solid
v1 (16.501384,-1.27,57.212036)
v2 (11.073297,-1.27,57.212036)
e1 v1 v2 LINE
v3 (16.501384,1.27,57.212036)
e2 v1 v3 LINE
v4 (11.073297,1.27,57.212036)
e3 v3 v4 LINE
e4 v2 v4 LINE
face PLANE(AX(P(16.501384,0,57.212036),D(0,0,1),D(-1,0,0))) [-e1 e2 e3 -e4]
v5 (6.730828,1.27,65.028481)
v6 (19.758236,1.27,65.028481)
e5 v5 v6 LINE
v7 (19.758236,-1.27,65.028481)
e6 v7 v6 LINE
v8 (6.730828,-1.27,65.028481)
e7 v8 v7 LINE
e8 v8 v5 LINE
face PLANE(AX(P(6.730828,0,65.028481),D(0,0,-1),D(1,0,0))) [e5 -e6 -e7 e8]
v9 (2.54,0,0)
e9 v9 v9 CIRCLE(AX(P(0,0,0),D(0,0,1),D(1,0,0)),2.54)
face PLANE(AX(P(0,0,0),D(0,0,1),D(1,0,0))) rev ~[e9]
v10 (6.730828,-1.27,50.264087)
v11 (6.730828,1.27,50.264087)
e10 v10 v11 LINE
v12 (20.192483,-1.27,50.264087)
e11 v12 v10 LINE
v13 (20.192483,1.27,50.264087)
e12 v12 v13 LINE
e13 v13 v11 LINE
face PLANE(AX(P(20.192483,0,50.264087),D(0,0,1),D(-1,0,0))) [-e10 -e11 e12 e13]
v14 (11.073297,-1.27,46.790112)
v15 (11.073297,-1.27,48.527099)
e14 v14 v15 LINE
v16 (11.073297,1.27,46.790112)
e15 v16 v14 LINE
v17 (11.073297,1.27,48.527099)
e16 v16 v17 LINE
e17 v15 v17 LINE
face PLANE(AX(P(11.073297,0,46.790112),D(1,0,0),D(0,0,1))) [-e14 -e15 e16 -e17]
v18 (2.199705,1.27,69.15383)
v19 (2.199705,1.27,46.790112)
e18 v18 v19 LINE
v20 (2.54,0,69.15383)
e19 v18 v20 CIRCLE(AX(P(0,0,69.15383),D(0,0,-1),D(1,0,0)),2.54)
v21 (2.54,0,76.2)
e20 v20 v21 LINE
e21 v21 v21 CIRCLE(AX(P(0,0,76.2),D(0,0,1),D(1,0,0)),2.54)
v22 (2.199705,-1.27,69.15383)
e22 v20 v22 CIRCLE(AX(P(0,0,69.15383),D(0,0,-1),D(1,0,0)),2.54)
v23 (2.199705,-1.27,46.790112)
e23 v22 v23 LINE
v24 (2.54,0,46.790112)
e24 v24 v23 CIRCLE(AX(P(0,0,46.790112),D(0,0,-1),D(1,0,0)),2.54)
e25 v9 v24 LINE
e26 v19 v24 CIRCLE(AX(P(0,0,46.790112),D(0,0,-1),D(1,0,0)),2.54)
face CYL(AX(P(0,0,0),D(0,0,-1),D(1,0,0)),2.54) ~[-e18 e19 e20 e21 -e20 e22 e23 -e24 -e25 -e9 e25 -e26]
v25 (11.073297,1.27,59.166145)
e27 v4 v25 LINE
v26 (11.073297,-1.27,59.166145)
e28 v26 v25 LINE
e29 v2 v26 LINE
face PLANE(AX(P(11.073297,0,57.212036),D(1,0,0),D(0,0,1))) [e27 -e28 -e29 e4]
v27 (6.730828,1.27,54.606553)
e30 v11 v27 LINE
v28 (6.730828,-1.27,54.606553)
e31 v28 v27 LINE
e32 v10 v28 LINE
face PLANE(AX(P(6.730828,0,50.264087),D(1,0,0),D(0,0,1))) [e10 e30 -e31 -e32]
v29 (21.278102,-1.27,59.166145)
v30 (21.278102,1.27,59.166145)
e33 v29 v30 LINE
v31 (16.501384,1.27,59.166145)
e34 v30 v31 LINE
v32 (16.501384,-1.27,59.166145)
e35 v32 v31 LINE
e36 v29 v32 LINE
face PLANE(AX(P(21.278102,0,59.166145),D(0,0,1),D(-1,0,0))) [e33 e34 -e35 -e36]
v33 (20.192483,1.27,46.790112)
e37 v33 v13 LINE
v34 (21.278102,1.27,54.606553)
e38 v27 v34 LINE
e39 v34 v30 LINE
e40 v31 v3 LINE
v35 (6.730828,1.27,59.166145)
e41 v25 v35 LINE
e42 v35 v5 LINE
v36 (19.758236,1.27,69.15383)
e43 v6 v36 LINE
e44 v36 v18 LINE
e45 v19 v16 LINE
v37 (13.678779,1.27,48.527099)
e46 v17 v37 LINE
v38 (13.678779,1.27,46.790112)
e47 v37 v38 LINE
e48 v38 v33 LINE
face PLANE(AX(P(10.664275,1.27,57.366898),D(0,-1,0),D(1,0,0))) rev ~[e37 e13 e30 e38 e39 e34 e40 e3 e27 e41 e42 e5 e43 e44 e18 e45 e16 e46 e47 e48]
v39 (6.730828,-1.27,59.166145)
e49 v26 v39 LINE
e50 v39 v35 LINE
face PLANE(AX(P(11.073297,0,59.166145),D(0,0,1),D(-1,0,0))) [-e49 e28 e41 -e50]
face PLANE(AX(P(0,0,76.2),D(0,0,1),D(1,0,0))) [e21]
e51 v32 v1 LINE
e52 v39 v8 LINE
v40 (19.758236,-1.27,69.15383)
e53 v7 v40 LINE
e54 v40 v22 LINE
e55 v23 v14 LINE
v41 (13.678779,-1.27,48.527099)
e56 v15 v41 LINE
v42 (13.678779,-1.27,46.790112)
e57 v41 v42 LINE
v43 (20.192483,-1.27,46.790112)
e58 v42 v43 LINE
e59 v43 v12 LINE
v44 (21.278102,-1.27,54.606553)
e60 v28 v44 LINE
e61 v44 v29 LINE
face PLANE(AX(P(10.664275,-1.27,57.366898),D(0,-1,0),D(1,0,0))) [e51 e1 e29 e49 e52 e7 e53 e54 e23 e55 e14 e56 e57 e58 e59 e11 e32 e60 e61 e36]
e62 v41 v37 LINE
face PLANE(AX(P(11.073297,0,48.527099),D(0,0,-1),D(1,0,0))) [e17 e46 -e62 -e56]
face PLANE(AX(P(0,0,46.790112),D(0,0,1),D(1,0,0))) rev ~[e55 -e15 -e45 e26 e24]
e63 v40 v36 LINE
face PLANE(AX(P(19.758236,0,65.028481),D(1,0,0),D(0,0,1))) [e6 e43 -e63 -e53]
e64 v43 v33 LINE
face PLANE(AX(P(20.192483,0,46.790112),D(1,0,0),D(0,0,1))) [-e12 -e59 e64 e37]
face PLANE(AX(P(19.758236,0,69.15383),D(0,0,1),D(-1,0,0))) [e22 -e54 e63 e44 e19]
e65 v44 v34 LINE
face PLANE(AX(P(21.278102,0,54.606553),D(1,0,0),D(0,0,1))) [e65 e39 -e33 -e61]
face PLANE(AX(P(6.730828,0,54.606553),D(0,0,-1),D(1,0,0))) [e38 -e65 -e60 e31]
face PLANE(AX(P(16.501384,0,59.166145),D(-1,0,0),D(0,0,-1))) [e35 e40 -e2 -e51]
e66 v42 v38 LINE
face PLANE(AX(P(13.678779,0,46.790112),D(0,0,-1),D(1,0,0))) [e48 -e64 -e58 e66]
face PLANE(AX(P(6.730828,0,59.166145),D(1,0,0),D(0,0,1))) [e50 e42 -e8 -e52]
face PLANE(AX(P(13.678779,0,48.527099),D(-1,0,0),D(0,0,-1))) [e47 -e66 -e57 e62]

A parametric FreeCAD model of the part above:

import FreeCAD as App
import Part
import Sketcher

V = App.Vector
Q = App.Units.Quantity

doc = App.newDocument("Part")
body = doc.addObject("PartDesign::Body", "Body")

sketch1 = body.newObject("Sketcher::SketchObject", "Sketch")
sketch1.AttachmentSupport = (doc.getObject("XY_Plane"), [""])
sketch1.MapMode = "FlatFace"
sketch1.addGeometry(Part.Circle(V(0, 0, 0), V(0, 0, 1), 2.54), False)
sketch1.addConstraint([
    Sketcher.Constraint("Coincident", 0, 3, -1, 1),
    Sketcher.Constraint("Diameter", 0, Q("0.2 in")),
])
pad1 = body.newObject("PartDesign::Pad", "Pad")
pad1.Profile = sketch1
pad1.Length = Q("3 in")

sketch2 = body.newObject("Sketcher::SketchObject", "Sketch001")
sketch2.AttachmentSupport = (doc.getObject("XZ_Plane"), [""])
sketch2.MapMode = "FlatFace"
sketch2.addGeometry([
    Part.LineSegment(V(19.758236, 69.15383, 0), V(0, 69.15383, 0)),
    Part.LineSegment(V(0, 69.15383, 0), V(0, 46.790112, 0)),
    Part.LineSegment(V(0, 46.790112, 0), V(11.073297, 46.790112, 0)),
    Part.LineSegment(V(11.073297, 46.790112, 0), V(11.073297, 48.527099, 0)),
    Part.LineSegment(V(11.073297, 48.527099, 0), V(13.678779, 48.527099, 0)),
    Part.LineSegment(V(13.678779, 48.527099, 0), V(13.678779, 46.790112, 0)),
    Part.LineSegment(V(13.678779, 46.790112, 0), V(20.192483, 46.790112, 0)),
    Part.LineSegment(V(20.192483, 46.790112, 0), V(20.192483, 50.264087, 0)),
    Part.LineSegment(V(20.192483, 50.264087, 0), V(6.730828, 50.264087, 0)),
    Part.LineSegment(V(6.730828, 50.264087, 0), V(6.730828, 54.606553, 0)),
    Part.LineSegment(V(6.730828, 54.606553, 0), V(21.278102, 54.606553, 0)),
    Part.LineSegment(V(21.278102, 54.606553, 0), V(21.278102, 59.166145, 0)),
    Part.LineSegment(V(21.278102, 59.166145, 0), V(16.501384, 59.166145, 0)),
    Part.LineSegment(V(16.501384, 59.166145, 0), V(16.501384, 57.212036, 0)),
    Part.LineSegment(V(16.501384, 57.212036, 0), V(11.073297, 57.212036, 0)),
    Part.LineSegment(V(11.073297, 57.212036, 0), V(11.073297, 59.166145, 0)),
    Part.LineSegment(V(11.073297, 59.166145, 0), V(6.730828, 59.166145, 0)),
    Part.LineSegment(V(6.730828, 59.166145, 0), V(6.730828, 65.028481, 0)),
    Part.LineSegment(V(6.730828, 65.028481, 0), V(19.758236, 65.028481, 0)),
    Part.LineSegment(V(19.758236, 65.028481, 0), V(19.758236, 69.15383, 0)),
], False)
sketch2.addConstraint([
    Sketcher.Constraint("Coincident", 0, 2, 1, 1),
    Sketcher.Constraint("Coincident", 1, 2, 2, 1),
    Sketcher.Constraint("Coincident", 2, 2, 3, 1),
    Sketcher.Constraint("Coincident", 3, 2, 4, 1),
    Sketcher.Constraint("Coincident", 4, 2, 5, 1),
    Sketcher.Constraint("Coincident", 5, 2, 6, 1),
    Sketcher.Constraint("Coincident", 6, 2, 7, 1),
    Sketcher.Constraint("Coincident", 7, 2, 8, 1),
    Sketcher.Constraint("Coincident", 8, 2, 9, 1),
    Sketcher.Constraint("Coincident", 9, 2, 10, 1),
    Sketcher.Constraint("Coincident", 10, 2, 11, 1),
    Sketcher.Constraint("Coincident", 11, 2, 12, 1),
    Sketcher.Constraint("Coincident", 12, 2, 13, 1),
    Sketcher.Constraint("Coincident", 13, 2, 14, 1),
    Sketcher.Constraint("Coincident", 14, 2, 15, 1),
    Sketcher.Constraint("Coincident", 15, 2, 16, 1),
    Sketcher.Constraint("Coincident", 16, 2, 17, 1),
    Sketcher.Constraint("Coincident", 17, 2, 18, 1),
    Sketcher.Constraint("Coincident", 18, 2, 19, 1),
    Sketcher.Constraint("Coincident", 19, 2, 0, 1),
    Sketcher.Constraint("Horizontal", 0),
    Sketcher.Constraint("Vertical", 1),
    Sketcher.Constraint("Horizontal", 2),
    Sketcher.Constraint("Vertical", 3),
    Sketcher.Constraint("Horizontal", 4),
    Sketcher.Constraint("Vertical", 5),
    Sketcher.Constraint("Horizontal", 6),
    Sketcher.Constraint("Vertical", 7),
    Sketcher.Constraint("Horizontal", 8),
    Sketcher.Constraint("Vertical", 9),
    Sketcher.Constraint("Horizontal", 10),
    Sketcher.Constraint("Vertical", 11),
    Sketcher.Constraint("Horizontal", 12),
    Sketcher.Constraint("Vertical", 13),
    Sketcher.Constraint("Horizontal", 14),
    Sketcher.Constraint("Vertical", 15),
    Sketcher.Constraint("Horizontal", 16),
    Sketcher.Constraint("Vertical", 17),
    Sketcher.Constraint("Horizontal", 18),
    Sketcher.Constraint("Vertical", 19),
    Sketcher.Constraint("PointOnObject", 0, 2, -2),
    Sketcher.Constraint("Horizontal", 2, 2, 5, 2),
    Sketcher.Constraint("Horizontal", 12, 2, 15, 2),
    Sketcher.Constraint("Vertical", 3, 2, 14, 2),
    Sketcher.Constraint("Vertical", 9, 2, 16, 2),
    Sketcher.Constraint("DistanceX", 12, 2, 12, 1, 4.776718),
    Sketcher.Constraint("DistanceX", 16, 2, 16, 1, 4.342469),
    Sketcher.Constraint("DistanceY", 1, 2, 1, 1, 22.363719),
    Sketcher.Constraint("DistanceY", 11, 1, 11, 2, 4.559591),
    Sketcher.Constraint("DistanceY", 13, 2, 13, 1, 1.954108),
    Sketcher.Constraint("DistanceY", 19, 1, 19, 2, 4.125349),
    Sketcher.Constraint("DistanceY", -1, 1, 3, 2, 48.527099),
    Sketcher.Constraint("DistanceX", -1, 1, 10, 2, 21.278102),
    Sketcher.Constraint("DistanceX", 12, 2, 7, 2, 3.6911),
    Sketcher.Constraint("DistanceX", 0, 2, 0, 1, 19.758236),
    Sketcher.Constraint("DistanceX", 2, 1, 2, 2, 11.073297),
    Sketcher.Constraint("DistanceX", 4, 1, 4, 2, 2.605482),
    Sketcher.Constraint("DistanceY", 3, 1, 3, 2, 1.736987),
    Sketcher.Constraint("DistanceY", 7, 1, 7, 2, 3.473975),
    Sketcher.Constraint("DistanceY", 9, 1, 9, 2, 4.342467),
])
pad2 = body.newObject("PartDesign::Pad", "Pad001")
pad2.Profile = sketch2
pad2.Length = Q("0.05 in")

sketch3 = body.newObject("Sketcher::SketchObject", "Sketch002")
sketch3.AttachmentSupport = (doc.getObject("XZ_Plane"), [""])
sketch3.MapMode = "FlatFace"
sketch3.addGeometry([
    Part.LineSegment(V(19.758236, 69.15383, 0), V(0, 69.15383, 0)),
    Part.LineSegment(V(0, 69.15383, 0), V(0, 46.790112, 0)),
    Part.LineSegment(V(0, 46.790112, 0), V(11.073297, 46.790112, 0)),
    Part.LineSegment(V(11.073297, 46.790112, 0), V(11.073297, 48.527099, 0)),
    Part.LineSegment(V(11.073297, 48.527099, 0), V(13.678779, 48.527099, 0)),
    Part.LineSegment(V(13.678779, 48.527099, 0), V(13.678779, 46.790112, 0)),
    Part.LineSegment(V(13.678779, 46.790112, 0), V(20.192483, 46.790112, 0)),
    Part.LineSegment(V(20.192483, 46.790112, 0), V(20.192483, 50.264087, 0)),
    Part.LineSegment(V(20.192483, 50.264087, 0), V(6.730828, 50.264087, 0)),
    Part.LineSegment(V(6.730828, 50.264087, 0), V(6.730828, 54.606553, 0)),
    Part.LineSegment(V(6.730828, 54.606553, 0), V(21.278102, 54.606553, 0)),
    Part.LineSegment(V(21.278102, 54.606553, 0), V(21.278102, 59.166145, 0)),
    Part.LineSegment(V(21.278102, 59.166145, 0), V(16.501384, 59.166145, 0)),
    Part.LineSegment(V(16.501384, 59.166145, 0), V(16.501384, 57.212036, 0)),
    Part.LineSegment(V(16.501384, 57.212036, 0), V(11.073297, 57.212036, 0)),
    Part.LineSegment(V(11.073297, 57.212036, 0), V(11.073297, 59.166145, 0)),
    Part.LineSegment(V(11.073297, 59.166145, 0), V(6.730828, 59.166145, 0)),
    Part.LineSegment(V(6.730828, 59.166145, 0), V(6.730828, 65.028481, 0)),
    Part.LineSegment(V(6.730828, 65.028481, 0), V(19.758236, 65.028481, 0)),
    Part.LineSegment(V(19.758236, 65.028481, 0), V(19.758236, 69.15383, 0)),
], False)
sketch3.addConstraint([
    Sketcher.Constraint("Coincident", 0, 2, 1, 1),
    Sketcher.Constraint("Coincident", 1, 2, 2, 1),
    Sketcher.Constraint("Coincident", 2, 2, 3, 1),
    Sketcher.Constraint("Coincident", 3, 2, 4, 1),
    Sketcher.Constraint("Coincident", 4, 2, 5, 1),
    Sketcher.Constraint("Coincident", 5, 2, 6, 1),
    Sketcher.Constraint("Coincident", 6, 2, 7, 1),
    Sketcher.Constraint("Coincident", 7, 2, 8, 1),
    Sketcher.Constraint("Coincident", 8, 2, 9, 1),
    Sketcher.Constraint("Coincident", 9, 2, 10, 1),
    Sketcher.Constraint("Coincident", 10, 2, 11, 1),
    Sketcher.Constraint("Coincident", 11, 2, 12, 1),
    Sketcher.Constraint("Coincident", 12, 2, 13, 1),
    Sketcher.Constraint("Coincident", 13, 2, 14, 1),
    Sketcher.Constraint("Coincident", 14, 2, 15, 1),
    Sketcher.Constraint("Coincident", 15, 2, 16, 1),
    Sketcher.Constraint("Coincident", 16, 2, 17, 1),
    Sketcher.Constraint("Coincident", 17, 2, 18, 1),
    Sketcher.Constraint("Coincident", 18, 2, 19, 1),
    Sketcher.Constraint("Coincident", 19, 2, 0, 1),
    Sketcher.Constraint("Horizontal", 0),
    Sketcher.Constraint("Vertical", 1),
    Sketcher.Constraint("Horizontal", 2),
    Sketcher.Constraint("Vertical", 3),
    Sketcher.Constraint("Horizontal", 4),
    Sketcher.Constraint("Vertical", 5),
    Sketcher.Constraint("Horizontal", 6),
    Sketcher.Constraint("Vertical", 7),
    Sketcher.Constraint("Horizontal", 8),
    Sketcher.Constraint("Vertical", 9),
    Sketcher.Constraint("Horizontal", 10),
    Sketcher.Constraint("Vertical", 11),
    Sketcher.Constraint("Horizontal", 12),
    Sketcher.Constraint("Vertical", 13),
    Sketcher.Constraint("Horizontal", 14),
    Sketcher.Constraint("Vertical", 15),
    Sketcher.Constraint("Horizontal", 16),
    Sketcher.Constraint("Vertical", 17),
    Sketcher.Constraint("Horizontal", 18),
    Sketcher.Constraint("Vertical", 19),
    Sketcher.Constraint("PointOnObject", 0, 2, -2),
    Sketcher.Constraint("Horizontal", 2, 2, 5, 2),
    Sketcher.Constraint("Horizontal", 12, 2, 15, 2),
    Sketcher.Constraint("Vertical", 3, 2, 14, 2),
    Sketcher.Constraint("Vertical", 9, 2, 16, 2),
    Sketcher.Constraint("DistanceX", 12, 2, 12, 1, 4.776718),
    Sketcher.Constraint("DistanceX", 16, 2, 16, 1, 4.342469),
    Sketcher.Constraint("DistanceY", 1, 2, 1, 1, 22.363719),
    Sketcher.Constraint("DistanceY", 11, 1, 11, 2, 4.559591),
    Sketcher.Constraint("DistanceY", 13, 2, 13, 1, 1.954108),
    Sketcher.Constraint("DistanceY", 19, 1, 19, 2, 4.125349),
    Sketcher.Constraint("DistanceY", -1, 1, 3, 2, 48.527099),
    Sketcher.Constraint("DistanceX", -1, 1, 10, 2, 21.278102),
    Sketcher.Constraint("DistanceX", 12, 2, 7, 2, 3.6911),
    Sketcher.Constraint("DistanceX", 0, 2, 0, 1, 19.758236),
    Sketcher.Constraint("DistanceX", 2, 1, 2, 2, 11.073297),
    Sketcher.Constraint("DistanceX", 4, 1, 4, 2, 2.605482),
    Sketcher.Constraint("DistanceY", 3, 1, 3, 2, 1.736987),
    Sketcher.Constraint("DistanceY", 7, 1, 7, 2, 3.473975),
    Sketcher.Constraint("DistanceY", 9, 1, 9, 2, 4.342467),
])
pad3 = body.newObject("PartDesign::Pad", "Pad002")
pad3.Profile = sketch3
pad3.Length = Q("0.05 in")
pad3.Reversed = True

doc.recompute()
